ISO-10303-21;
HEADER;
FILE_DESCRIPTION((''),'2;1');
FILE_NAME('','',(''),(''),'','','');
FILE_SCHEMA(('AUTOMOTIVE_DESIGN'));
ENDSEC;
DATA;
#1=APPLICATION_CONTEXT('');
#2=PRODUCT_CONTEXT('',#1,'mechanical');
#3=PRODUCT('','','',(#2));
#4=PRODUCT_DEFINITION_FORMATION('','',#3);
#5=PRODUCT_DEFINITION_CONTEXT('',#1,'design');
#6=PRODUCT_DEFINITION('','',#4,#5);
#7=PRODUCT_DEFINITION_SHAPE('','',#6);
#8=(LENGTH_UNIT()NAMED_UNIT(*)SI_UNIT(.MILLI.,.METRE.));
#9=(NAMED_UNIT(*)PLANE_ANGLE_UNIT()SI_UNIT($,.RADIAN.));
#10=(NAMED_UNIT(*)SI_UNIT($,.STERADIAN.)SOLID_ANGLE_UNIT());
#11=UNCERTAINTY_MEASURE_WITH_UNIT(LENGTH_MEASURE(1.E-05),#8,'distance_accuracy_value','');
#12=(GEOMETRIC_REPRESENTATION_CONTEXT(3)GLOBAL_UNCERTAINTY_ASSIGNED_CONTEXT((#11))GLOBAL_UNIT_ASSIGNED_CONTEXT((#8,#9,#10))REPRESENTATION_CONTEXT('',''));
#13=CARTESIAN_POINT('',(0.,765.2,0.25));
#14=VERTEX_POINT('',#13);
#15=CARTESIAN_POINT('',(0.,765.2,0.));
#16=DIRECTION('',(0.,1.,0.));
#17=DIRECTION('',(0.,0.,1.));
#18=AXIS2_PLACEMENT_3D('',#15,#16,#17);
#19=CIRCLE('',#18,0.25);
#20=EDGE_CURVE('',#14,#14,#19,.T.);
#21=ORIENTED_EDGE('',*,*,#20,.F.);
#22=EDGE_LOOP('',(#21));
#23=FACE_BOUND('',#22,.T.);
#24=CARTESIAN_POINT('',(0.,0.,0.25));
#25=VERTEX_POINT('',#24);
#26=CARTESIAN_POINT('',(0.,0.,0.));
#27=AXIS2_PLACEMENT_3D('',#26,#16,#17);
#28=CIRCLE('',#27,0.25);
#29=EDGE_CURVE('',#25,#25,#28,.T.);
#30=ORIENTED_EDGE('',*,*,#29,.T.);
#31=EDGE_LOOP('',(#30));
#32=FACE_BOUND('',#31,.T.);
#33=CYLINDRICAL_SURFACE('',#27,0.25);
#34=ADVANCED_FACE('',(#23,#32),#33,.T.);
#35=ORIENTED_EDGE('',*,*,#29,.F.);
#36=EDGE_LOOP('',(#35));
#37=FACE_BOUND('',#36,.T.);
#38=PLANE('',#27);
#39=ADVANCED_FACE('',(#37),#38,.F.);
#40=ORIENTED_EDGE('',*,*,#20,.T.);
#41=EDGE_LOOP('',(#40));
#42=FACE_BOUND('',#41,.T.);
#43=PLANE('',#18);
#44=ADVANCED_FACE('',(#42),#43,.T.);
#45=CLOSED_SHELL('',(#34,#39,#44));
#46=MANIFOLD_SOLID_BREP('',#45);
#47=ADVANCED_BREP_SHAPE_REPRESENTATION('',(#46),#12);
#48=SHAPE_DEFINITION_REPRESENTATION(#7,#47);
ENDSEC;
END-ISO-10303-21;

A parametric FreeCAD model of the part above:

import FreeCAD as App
import Part
import Sketcher

doc = App.newDocument("Part")
body = doc.addObject("PartDesign::Body", "Body")

sketch1 = doc.addObject("Sketcher::SketchObject", "Sketch")
body.addObject(sketch1)
sketch1.AttachmentSupport = (doc.XZ_Plane, [""])
sketch1.MapMode = "FlatFace"
sketch1.addGeometry(Part.Circle(App.Vector(0, 0, 0), App.Vector(0, 0, 1), 0.25), False)
sketch1.addConstraint(Sketcher.Constraint("Coincident", 0, 3, -1, 1))
sketch1.addConstraint(Sketcher.Constraint("Diameter", 0, 0.5))

sketch2 = doc.addObject("Sketcher::SketchObject", "Sketch001")
body.addObject(sketch2)
sketch2.AttachmentSupport = (doc.XY_Plane, [""])
sketch2.MapMode = "FlatFace"
sketch2.addGeometry(Part.LineSegment(App.Vector(0, 0, 0), App.Vector(0, 765, 0)), False)
sketch2.addConstraint(Sketcher.Constraint("Vertical", 0))
sketch2.addConstraint(Sketcher.Constraint("Coincident", 0, 1, -1, 1))
sketch2.addConstraint(Sketcher.Constraint("DistanceY", 0, 1, 0, 2, 765.2))
doc.recompute()

additivepipe = doc.addObject("PartDesign::AdditivePipe", "AdditivePipe")
body.addObject(additivepipe)
additivepipe.Profile = sketch1
additivepipe.Spine = (sketch2, ["Edge1"])

doc.recompute()
